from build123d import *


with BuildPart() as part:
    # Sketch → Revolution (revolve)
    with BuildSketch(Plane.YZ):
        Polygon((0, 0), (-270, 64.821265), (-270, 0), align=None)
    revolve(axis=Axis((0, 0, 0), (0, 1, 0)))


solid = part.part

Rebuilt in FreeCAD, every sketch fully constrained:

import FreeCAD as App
import Part
import Sketcher

V = App.Vector
Q = App.Units.Quantity


def add_polygon(sketch, points):
    """Adds a closed chain of lines whose ends are joined by coincident constraints."""
    first, n = sketch.GeometryCount, len(points)
    for a, b in zip(points, points[1:] + points[:1]):
        sketch.addGeometry(Part.LineSegment(App.Vector(*a, 0), App.Vector(*b, 0)), False)
    for i in range(n):
        sketch.addConstraint(Sketcher.Constraint("Coincident", first + i, 2, first + (i + 1) % n, 1))

doc = App.newDocument("Part")
body = doc.addObject("PartDesign::Body", "Body")

sketch1 = body.newObject("Sketcher::SketchObject", "Sketch")
sketch1.AttachmentSupport = (doc.getObject("YZ_Plane"), [""])
sketch1.MapMode = "FlatFace"
add_polygon(sketch1, [(0, 0), (-270, 65), (-270, 0)])
sketch1.addConstraint([
    Sketcher.Constraint("Vertical", 1),
    Sketcher.Constraint("Horizontal", 2),
    Sketcher.Constraint("Coincident", 2, 2, -1, 1),
    Sketcher.Constraint("DistanceX", 2, 1, 2, 2, Q("270 mm")),
    Sketcher.Constraint("Angle", 0, Q("166.5 deg")),
])
revolution = body.newObject("PartDesign::Revolution", "Revolution")
revolution.Profile = sketch1
revolution.ReferenceAxis = (sketch1, ["H_Axis"])
revolution.Angle = 360

doc.recompute()
